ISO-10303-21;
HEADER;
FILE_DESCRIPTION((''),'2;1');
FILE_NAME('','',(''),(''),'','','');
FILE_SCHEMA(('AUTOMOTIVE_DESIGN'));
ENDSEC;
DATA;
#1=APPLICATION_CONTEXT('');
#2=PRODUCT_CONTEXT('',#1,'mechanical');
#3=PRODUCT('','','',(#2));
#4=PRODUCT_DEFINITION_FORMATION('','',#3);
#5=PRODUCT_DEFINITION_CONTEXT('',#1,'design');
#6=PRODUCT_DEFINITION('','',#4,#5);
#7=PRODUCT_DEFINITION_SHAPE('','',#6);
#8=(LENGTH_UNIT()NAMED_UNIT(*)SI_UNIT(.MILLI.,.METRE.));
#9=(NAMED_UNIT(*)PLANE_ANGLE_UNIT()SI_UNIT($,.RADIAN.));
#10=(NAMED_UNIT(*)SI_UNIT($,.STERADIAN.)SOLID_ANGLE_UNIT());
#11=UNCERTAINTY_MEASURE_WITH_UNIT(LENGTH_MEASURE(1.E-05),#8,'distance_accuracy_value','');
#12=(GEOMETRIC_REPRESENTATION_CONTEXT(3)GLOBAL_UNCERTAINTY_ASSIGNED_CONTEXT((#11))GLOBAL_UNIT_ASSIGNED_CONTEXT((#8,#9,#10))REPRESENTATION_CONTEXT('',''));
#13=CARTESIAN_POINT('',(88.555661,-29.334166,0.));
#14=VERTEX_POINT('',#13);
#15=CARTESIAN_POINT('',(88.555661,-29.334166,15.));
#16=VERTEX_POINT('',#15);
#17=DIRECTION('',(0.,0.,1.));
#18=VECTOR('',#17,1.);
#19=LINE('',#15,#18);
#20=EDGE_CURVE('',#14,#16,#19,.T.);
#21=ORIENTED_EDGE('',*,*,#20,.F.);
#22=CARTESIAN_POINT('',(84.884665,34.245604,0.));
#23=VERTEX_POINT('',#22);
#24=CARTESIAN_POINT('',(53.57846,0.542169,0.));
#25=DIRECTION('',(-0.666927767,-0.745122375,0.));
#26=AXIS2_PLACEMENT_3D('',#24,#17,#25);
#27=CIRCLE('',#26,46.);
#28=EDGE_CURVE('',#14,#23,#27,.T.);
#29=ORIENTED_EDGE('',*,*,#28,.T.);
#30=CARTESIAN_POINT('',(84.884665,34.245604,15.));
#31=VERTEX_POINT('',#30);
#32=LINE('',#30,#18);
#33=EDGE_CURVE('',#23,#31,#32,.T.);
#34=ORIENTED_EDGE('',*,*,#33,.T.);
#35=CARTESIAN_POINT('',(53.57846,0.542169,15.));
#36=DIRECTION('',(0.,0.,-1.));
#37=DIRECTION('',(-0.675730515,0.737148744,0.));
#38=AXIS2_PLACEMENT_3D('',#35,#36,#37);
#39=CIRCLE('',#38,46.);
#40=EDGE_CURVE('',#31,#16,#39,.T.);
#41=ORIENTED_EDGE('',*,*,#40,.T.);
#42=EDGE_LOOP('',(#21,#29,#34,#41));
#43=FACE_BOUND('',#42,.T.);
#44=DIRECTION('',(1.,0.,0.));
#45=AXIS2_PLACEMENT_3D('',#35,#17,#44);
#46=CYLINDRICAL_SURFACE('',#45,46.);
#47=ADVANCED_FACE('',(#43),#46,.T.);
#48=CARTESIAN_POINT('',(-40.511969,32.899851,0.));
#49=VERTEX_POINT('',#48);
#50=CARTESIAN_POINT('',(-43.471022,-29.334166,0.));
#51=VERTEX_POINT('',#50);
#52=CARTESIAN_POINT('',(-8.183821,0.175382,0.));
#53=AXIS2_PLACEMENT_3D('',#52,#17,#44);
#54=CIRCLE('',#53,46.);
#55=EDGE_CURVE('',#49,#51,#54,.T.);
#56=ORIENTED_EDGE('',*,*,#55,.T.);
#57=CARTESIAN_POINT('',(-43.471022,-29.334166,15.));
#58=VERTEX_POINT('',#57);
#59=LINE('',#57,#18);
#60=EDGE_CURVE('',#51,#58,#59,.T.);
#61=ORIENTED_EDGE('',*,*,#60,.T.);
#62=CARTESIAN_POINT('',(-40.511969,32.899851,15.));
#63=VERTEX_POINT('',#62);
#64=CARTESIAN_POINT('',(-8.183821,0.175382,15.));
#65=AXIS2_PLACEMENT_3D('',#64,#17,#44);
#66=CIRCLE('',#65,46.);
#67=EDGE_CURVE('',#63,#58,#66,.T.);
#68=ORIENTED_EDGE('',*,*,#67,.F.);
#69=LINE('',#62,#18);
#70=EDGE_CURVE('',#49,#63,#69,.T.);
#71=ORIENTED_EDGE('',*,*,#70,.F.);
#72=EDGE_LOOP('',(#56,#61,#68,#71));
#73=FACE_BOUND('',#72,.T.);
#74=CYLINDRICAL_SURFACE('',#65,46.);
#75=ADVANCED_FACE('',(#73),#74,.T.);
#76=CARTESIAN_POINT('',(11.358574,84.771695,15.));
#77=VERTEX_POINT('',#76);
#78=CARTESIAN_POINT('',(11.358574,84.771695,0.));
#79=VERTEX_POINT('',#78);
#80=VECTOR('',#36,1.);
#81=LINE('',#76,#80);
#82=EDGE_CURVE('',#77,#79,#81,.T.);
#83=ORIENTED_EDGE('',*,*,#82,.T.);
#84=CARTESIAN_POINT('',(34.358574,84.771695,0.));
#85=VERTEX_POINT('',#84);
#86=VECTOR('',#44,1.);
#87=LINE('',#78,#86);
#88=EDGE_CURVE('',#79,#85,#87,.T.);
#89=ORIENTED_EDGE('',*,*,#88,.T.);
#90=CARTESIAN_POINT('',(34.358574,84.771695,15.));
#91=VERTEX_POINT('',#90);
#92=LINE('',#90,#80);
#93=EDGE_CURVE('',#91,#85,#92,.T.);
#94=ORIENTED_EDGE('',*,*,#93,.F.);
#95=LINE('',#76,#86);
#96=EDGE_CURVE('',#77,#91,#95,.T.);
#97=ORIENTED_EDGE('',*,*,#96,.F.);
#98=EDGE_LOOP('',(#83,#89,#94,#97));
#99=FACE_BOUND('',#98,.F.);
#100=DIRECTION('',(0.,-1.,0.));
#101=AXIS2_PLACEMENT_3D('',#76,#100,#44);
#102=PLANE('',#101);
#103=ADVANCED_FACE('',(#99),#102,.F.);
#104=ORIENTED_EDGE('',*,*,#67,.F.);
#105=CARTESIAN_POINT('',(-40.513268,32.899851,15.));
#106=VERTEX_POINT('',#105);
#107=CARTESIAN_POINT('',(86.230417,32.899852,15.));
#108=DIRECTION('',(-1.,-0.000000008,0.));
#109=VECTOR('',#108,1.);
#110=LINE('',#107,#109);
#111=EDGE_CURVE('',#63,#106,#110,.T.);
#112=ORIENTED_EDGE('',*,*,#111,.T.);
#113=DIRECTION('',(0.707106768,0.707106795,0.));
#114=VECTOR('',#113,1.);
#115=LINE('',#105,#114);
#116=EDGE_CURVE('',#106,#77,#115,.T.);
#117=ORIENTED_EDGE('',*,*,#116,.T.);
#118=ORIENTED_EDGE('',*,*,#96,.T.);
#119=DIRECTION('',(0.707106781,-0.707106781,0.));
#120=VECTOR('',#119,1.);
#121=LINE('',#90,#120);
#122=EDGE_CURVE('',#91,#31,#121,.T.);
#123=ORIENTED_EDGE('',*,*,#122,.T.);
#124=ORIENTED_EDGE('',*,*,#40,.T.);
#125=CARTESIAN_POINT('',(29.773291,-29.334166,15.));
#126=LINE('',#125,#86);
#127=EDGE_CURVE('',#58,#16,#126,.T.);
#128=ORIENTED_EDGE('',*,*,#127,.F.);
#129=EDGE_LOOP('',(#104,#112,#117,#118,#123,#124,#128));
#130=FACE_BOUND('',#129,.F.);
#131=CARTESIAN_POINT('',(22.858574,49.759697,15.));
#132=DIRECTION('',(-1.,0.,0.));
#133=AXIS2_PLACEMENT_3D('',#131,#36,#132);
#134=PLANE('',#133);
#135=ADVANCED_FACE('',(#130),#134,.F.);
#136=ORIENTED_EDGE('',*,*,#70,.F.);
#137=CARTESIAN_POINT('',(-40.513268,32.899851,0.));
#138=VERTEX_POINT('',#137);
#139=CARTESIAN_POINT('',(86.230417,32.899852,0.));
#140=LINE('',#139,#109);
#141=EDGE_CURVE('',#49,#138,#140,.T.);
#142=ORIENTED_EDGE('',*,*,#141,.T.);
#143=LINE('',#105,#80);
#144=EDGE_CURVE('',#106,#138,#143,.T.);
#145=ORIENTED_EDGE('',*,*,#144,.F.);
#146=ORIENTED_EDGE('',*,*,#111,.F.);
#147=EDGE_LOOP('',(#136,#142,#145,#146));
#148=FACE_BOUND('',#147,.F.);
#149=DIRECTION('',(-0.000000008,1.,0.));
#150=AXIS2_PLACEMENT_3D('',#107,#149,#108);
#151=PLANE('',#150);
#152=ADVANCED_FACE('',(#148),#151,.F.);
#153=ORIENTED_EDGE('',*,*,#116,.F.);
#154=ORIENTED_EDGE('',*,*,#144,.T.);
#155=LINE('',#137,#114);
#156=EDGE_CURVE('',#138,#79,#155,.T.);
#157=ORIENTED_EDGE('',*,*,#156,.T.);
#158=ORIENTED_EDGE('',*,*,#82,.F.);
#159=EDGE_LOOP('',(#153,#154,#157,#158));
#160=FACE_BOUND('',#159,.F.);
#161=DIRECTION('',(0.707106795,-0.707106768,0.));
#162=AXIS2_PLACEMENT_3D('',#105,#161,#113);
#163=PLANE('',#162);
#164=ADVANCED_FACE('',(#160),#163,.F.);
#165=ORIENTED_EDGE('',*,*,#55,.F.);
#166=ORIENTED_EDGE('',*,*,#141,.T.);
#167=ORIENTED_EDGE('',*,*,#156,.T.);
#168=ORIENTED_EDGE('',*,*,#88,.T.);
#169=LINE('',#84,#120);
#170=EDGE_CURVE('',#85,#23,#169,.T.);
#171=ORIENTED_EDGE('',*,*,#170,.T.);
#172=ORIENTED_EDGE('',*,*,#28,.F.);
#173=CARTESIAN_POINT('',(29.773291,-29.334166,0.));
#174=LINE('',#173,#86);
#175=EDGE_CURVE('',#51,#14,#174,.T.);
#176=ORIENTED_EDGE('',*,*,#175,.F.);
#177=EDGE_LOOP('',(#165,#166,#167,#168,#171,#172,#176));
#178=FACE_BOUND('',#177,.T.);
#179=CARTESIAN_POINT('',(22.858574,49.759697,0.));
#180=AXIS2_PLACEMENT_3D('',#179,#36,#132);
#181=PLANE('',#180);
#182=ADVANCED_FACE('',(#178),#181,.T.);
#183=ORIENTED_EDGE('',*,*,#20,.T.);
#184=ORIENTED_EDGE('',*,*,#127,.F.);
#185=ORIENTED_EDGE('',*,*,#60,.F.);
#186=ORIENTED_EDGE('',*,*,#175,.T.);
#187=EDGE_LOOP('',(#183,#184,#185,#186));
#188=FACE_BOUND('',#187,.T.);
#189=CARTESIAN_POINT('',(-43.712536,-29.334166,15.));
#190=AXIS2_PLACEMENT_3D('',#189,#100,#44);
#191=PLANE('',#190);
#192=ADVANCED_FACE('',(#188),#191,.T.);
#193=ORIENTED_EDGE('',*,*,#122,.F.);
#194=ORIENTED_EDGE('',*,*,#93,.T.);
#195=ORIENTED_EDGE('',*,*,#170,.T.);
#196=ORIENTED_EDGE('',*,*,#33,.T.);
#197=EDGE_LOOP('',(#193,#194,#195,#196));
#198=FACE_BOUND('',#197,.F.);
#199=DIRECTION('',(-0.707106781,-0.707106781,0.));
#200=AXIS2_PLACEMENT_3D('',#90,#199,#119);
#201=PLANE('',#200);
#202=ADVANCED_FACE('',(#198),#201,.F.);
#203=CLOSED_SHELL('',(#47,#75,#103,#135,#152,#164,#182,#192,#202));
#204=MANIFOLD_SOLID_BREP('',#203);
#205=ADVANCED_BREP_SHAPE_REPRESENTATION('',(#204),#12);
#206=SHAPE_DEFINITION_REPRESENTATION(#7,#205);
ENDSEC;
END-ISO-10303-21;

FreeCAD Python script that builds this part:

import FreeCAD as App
import Part
import Sketcher
from FreeCAD import Vector

doc = App.newDocument("Part")
body = doc.addObject("PartDesign::Body", "Body")

sketch1 = body.newObject("Sketcher::SketchObject", "Sketch")
sketch1.AttachmentSupport = (doc.getObject("XY_Plane"), [""])
sketch1.MapMode = "FlatFace"
sketch1.AttachmentOffset = App.Placement(Vector(0, 0, 15), App.Rotation())
sketch1.addGeometry([
    Part.LineSegment(Vector(11, 85, 0), Vector(-41, 33, 0)),
    Part.LineSegment(Vector(-41, 33, 0), Vector(86, 33, 0)),
    Part.LineSegment(Vector(86, 33, 0), Vector(34, 85, 0)),
    Part.LineSegment(Vector(34, 85, 0), Vector(11, 85, 0)),
], False)
sketch1.addConstraint([
    Sketcher.Constraint("Coincident", 0, 2, 1, 1),
    Sketcher.Constraint("Coincident", 1, 2, 2, 1),
    Sketcher.Constraint("Coincident", 2, 2, 3, 1),
    Sketcher.Constraint("Coincident", 3, 2, 0, 1),
    Sketcher.Constraint("Horizontal", 1),
    Sketcher.Constraint("Horizontal", 3),
    Sketcher.Constraint("Perpendicular", 0, 2),
    Sketcher.Constraint("Equal", 0, 2),
    Sketcher.Constraint("DistanceX", 3, 2, 3, 1, 23.0),
    Sketcher.Constraint("DistanceX", 1, 1, 1, 2, 126.743685),
    Sketcher.Constraint("DistanceY", -1, 1, 0, 2, 32.899851),
    Sketcher.Constraint("DistanceX", 0, 2, -1, 1, 40.513268),
])
pad1 = body.newObject("PartDesign::Pad", "Pad")
pad1.Profile = sketch1
pad1.Length = 15
pad1.Reversed = True
body2 = doc.addObject("PartDesign::Body", "Body001")

sketch2 = body2.newObject("Sketcher::SketchObject", "Sketch001")
sketch2.AttachmentSupport = (doc.getObject("XY_Plane001"), [""])
sketch2.MapMode = "FlatFace"
sketch2.AttachmentOffset = App.Placement(Vector(0, 0, 15), App.Rotation())
sketch2.addGeometry([
    Part.LineSegment(Vector(-44, -29, 0), Vector(-44, -55, 0)),
    Part.LineSegment(Vector(-44, -55, 0), Vector(103, -55, 0)),
    Part.LineSegment(Vector(103, -55, 0), Vector(103, -29, 0)),
    Part.LineSegment(Vector(103, -29, 0), Vector(-44, -29, 0)),
], False)
sketch2.addConstraint([
    Sketcher.Constraint("Coincident", 0, 2, 1, 1),
    Sketcher.Constraint("Coincident", 1, 2, 2, 1),
    Sketcher.Constraint("Coincident", 2, 2, 3, 1),
    Sketcher.Constraint("Coincident", 3, 2, 0, 1),
    Sketcher.Constraint("Vertical", 0),
    Sketcher.Constraint("Horizontal", 1),
    Sketcher.Constraint("Vertical", 2),
    Sketcher.Constraint("Horizontal", 3),
    Sketcher.Constraint("DistanceY", 0, 2, 0, 1, 26.042151),
    Sketcher.Constraint("DistanceX", 1, 1, 1, 2, 146.971653),
    Sketcher.Constraint("DistanceX", 0, 2, -1, 1, 43.712536),
    Sketcher.Constraint("DistanceY", 0, 2, -1, 1, 55.376317),
])
pad2 = body2.newObject("PartDesign::Pad", "Pad001")
pad2.Profile = sketch2
pad2.Length = 15
pad2.Reversed = True
body3 = doc.addObject("PartDesign::Body", "Body002")

sketch3 = body3.newObject("Sketcher::SketchObject", "Sketch002")
sketch3.AttachmentSupport = (doc.getObject("XY_Plane002"), [""])
sketch3.MapMode = "FlatFace"
sketch3.AttachmentOffset = App.Placement(Vector(0, 0, 15), App.Rotation())
sketch3.addGeometry(Part.Circle(Vector(54, 1, 0), Vector(0, 0, 1), 46), False)
sketch3.addConstraint([
    Sketcher.Constraint("Diameter", 0, 92.0),
    Sketcher.Constraint("DistanceX", -1, 1, 0, 3, 53.57846),
    Sketcher.Constraint("DistanceY", -1, 1, 0, 3, 0.542169),
])
pad3 = body3.newObject("PartDesign::Pad", "Pad002")
pad3.Profile = sketch3
pad3.Length = 15
pad3.Reversed = True
body4 = doc.addObject("PartDesign::Body", "Body003")

sketch4 = body4.newObject("Sketcher::SketchObject", "Sketch003")
sketch4.AttachmentSupport = (doc.getObject("XY_Plane003"), [""])
sketch4.MapMode = "FlatFace"
sketch4.AttachmentOffset = App.Placement(Vector(0, 0, 15), App.Rotation())
sketch4.addGeometry(Part.Circle(Vector(-8, 0, 0), Vector(0, 0, 1), 46), False)
sketch4.addConstraint([
    Sketcher.Constraint("Diameter", 0, 92.0),
    Sketcher.Constraint("DistanceX", 0, 3, -1, 1, 8.183821),
    Sketcher.Constraint("DistanceY", -1, 1, 0, 3, 0.175382),
])
pad4 = body4.newObject("PartDesign::Pad", "Pad003")
pad4.Profile = sketch4
pad4.Length = 15
pad4.Reversed = True
doc.recompute()

boolean = body4.newObject("PartDesign::Boolean", "Boolean")
boolean.Type = "Fuse"
boolean.addObjects([body3])
doc.recompute()

boolean2 = body4.newObject("PartDesign::Boolean", "Boolean001")
boolean2.Type = "Cut"
boolean2.addObjects([body2])
doc.recompute()

boolean3 = body4.newObject("PartDesign::Boolean", "Boolean002")
boolean3.Type = "Fuse"
boolean3.addObjects([body])

doc.recompute()
